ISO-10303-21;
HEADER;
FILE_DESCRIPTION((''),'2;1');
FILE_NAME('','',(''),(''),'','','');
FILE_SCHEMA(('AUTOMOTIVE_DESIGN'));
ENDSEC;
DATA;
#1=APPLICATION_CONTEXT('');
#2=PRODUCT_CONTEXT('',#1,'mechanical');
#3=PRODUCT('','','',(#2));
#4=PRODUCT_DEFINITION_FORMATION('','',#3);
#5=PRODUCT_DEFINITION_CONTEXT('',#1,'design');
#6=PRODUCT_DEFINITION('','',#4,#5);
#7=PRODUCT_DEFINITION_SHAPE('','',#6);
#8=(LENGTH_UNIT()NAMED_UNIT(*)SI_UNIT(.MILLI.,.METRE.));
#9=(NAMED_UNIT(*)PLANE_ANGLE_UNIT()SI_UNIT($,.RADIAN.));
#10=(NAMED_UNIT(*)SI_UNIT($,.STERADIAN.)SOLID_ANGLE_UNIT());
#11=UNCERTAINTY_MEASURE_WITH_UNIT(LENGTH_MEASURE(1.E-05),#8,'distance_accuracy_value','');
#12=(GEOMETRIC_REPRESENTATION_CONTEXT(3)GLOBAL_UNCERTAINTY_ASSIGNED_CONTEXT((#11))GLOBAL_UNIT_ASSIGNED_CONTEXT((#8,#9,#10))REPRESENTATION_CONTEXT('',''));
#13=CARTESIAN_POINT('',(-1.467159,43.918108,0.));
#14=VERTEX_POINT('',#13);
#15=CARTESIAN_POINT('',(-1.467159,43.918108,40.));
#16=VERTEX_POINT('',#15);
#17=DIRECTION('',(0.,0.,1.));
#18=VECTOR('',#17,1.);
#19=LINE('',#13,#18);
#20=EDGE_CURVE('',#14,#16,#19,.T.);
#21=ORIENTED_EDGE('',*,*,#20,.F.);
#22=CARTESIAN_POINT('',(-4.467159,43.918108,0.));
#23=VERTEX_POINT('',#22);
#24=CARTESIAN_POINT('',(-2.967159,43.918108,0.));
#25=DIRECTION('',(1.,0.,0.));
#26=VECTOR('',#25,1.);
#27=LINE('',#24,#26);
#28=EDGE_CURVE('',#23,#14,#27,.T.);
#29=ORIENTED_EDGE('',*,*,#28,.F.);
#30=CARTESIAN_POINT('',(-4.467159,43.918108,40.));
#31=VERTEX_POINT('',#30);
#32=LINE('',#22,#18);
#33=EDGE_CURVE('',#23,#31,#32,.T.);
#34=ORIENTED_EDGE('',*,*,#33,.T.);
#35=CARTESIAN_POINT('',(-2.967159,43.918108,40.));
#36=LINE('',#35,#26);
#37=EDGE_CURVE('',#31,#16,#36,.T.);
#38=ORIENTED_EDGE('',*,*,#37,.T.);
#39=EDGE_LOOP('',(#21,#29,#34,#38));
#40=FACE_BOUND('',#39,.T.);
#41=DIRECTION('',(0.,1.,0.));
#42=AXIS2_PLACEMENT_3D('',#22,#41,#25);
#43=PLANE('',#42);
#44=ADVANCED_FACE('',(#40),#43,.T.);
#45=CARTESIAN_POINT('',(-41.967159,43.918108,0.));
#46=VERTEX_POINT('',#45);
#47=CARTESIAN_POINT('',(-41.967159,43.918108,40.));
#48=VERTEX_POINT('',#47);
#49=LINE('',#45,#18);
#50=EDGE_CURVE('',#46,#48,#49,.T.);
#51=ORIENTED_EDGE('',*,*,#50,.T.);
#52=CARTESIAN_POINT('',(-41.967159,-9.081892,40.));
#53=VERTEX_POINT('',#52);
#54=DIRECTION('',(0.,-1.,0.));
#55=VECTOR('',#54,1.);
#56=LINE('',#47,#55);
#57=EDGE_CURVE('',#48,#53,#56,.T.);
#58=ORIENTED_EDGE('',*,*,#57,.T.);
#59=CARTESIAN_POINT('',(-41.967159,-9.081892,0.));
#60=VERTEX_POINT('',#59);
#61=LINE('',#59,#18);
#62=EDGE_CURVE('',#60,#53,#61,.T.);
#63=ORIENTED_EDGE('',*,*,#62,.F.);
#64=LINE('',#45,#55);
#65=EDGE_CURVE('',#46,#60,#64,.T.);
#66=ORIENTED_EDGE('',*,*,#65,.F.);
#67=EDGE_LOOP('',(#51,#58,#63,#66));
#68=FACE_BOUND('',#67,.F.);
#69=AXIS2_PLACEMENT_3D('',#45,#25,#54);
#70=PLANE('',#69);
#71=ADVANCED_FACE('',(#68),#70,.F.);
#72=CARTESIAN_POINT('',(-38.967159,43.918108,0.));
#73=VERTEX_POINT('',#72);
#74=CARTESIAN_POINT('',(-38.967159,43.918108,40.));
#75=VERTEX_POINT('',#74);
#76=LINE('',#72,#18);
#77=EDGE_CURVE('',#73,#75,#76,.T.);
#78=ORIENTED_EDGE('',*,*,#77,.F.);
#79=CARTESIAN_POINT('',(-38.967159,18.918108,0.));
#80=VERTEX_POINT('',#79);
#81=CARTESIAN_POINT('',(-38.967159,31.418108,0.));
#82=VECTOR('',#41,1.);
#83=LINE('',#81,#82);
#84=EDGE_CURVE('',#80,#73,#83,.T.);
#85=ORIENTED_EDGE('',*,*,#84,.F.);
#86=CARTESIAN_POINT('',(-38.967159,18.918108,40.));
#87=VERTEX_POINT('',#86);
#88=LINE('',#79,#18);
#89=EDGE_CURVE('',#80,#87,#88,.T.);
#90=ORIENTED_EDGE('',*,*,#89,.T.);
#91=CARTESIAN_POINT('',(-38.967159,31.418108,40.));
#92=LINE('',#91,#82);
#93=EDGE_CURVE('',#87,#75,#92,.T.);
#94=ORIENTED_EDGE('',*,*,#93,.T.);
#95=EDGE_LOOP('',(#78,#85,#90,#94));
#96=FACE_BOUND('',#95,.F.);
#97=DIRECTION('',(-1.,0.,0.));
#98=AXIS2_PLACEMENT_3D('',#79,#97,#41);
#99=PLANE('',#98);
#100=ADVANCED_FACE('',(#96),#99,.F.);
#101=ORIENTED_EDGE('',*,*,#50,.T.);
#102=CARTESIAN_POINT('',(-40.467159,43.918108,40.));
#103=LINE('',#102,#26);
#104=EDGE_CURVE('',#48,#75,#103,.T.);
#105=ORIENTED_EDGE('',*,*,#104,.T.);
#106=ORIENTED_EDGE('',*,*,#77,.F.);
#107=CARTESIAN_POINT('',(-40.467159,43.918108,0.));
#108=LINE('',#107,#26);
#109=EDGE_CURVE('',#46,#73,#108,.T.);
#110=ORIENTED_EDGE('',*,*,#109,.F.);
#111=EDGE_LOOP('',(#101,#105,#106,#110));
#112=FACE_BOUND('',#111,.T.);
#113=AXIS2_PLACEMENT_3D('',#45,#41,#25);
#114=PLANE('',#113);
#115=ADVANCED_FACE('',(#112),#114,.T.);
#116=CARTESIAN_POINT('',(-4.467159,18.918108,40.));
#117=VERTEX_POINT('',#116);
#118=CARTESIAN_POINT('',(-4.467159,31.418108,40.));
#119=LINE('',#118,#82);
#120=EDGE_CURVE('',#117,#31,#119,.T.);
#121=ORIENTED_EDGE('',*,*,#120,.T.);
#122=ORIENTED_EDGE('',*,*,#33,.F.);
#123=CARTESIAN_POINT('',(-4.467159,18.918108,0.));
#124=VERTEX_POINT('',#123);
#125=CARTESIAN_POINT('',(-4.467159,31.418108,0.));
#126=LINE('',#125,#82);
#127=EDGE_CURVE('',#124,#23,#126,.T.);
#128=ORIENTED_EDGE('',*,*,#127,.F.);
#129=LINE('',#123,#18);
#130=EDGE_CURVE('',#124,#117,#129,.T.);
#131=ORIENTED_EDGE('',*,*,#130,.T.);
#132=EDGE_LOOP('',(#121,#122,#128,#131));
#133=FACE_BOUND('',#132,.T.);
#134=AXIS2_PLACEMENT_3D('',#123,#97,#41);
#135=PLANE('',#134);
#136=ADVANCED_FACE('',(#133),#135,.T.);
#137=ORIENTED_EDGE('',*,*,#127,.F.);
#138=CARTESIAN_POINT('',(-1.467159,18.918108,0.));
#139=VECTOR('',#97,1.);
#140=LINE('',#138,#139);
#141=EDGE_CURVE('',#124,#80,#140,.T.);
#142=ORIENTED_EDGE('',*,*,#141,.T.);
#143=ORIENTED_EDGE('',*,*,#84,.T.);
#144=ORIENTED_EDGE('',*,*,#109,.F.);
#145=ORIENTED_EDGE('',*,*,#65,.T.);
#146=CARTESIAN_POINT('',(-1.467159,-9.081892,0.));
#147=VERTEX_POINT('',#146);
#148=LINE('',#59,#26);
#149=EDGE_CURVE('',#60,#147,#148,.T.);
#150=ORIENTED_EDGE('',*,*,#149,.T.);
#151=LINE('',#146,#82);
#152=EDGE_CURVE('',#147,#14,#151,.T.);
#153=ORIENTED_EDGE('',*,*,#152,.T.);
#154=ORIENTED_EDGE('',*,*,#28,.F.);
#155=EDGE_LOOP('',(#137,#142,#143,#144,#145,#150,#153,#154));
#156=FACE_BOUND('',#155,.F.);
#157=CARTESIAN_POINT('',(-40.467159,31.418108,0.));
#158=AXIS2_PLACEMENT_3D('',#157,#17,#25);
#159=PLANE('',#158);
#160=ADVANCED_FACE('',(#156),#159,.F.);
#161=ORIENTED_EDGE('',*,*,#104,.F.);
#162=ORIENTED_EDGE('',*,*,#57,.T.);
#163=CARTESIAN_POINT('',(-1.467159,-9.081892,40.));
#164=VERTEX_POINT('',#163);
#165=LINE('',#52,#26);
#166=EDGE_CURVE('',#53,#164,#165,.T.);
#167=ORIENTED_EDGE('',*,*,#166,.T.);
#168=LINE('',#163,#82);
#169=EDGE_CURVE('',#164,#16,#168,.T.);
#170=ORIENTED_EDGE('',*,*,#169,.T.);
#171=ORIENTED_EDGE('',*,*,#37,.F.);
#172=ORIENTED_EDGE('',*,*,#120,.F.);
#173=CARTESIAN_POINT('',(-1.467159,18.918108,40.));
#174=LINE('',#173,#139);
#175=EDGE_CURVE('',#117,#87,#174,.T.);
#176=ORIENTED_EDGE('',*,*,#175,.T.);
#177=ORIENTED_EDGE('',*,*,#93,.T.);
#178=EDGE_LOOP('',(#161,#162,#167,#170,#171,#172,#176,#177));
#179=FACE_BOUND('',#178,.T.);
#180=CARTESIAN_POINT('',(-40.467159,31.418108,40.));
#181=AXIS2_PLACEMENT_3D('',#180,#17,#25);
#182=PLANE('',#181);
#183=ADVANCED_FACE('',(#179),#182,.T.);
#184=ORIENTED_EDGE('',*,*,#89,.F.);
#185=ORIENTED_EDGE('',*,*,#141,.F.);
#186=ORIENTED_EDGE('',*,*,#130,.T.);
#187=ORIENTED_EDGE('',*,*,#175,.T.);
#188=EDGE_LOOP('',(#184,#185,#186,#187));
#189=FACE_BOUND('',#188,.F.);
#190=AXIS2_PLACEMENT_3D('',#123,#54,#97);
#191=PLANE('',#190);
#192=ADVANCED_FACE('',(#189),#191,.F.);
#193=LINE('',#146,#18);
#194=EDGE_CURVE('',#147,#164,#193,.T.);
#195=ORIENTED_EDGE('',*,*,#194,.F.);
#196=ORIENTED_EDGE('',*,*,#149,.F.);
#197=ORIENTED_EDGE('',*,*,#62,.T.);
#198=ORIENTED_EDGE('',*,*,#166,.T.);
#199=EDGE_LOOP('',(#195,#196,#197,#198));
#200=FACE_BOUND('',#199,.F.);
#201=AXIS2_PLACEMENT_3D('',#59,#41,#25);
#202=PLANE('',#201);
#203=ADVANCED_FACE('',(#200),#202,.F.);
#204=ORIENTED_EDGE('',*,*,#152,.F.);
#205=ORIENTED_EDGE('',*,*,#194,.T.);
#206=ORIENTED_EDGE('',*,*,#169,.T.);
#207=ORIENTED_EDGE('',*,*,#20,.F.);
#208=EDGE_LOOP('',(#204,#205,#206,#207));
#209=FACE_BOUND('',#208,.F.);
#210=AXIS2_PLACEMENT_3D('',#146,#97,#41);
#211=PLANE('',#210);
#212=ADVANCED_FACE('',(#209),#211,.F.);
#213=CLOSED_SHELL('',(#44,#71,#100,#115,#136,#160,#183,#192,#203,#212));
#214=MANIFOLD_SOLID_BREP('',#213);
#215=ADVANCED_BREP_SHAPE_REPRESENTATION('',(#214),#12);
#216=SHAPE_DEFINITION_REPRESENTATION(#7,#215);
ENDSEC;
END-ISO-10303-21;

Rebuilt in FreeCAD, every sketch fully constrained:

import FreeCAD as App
import Part
import Sketcher

V = App.Vector
Q = App.Units.Quantity

doc = App.newDocument("Part")
params = doc.addObject("Spreadsheet::Sheet", "Params")
for row, (alias, value) in enumerate([
    ("sketch1_width", "3 mm"),
    ("sketch1_height", "53 mm"),
    ("sketch1_height2", "25 mm"),
    ("sketch1_width2", "40.5 mm"),
    ("pad1_length", "40 mm"),
], start=1):
    params.set(f"A{row}", alias)
    params.set(f"B{row}", "=" + value)
    params.setAlias(f"B{row}", alias)

body = doc.addObject("PartDesign::Body", "Body")

sketch1 = body.newObject("Sketcher::SketchObject", "Sketch")
sketch1.AttachmentSupport = (doc.getObject("XY_Plane"), [""])
sketch1.MapMode = "FlatFace"
sketch1.addGeometry([
    Part.LineSegment(V(-41.967159, 43.918108, 0), V(-41.967159, -9.081892, 0)),
    Part.LineSegment(V(-41.967159, -9.081892, 0), V(-1.467159, -9.081892, 0)),
    Part.LineSegment(V(-1.467159, -9.081892, 0), V(-1.467159, 43.918108, 0)),
    Part.LineSegment(V(-1.467159, 43.918108, 0), V(-4.467159, 43.918108, 0)),
    Part.LineSegment(V(-4.467159, 43.918108, 0), V(-4.467159, 18.918108, 0)),
    Part.LineSegment(V(-4.467159, 18.918108, 0), V(-38.967159, 18.918108, 0)),
    Part.LineSegment(V(-38.967159, 18.918108, 0), V(-38.967159, 43.918108, 0)),
    Part.LineSegment(V(-38.967159, 43.918108, 0), V(-41.967159, 43.918108, 0)),
], False)
sketch1.addConstraint([
    Sketcher.Constraint("Coincident", 0, 2, 1, 1),
    Sketcher.Constraint("Coincident", 1, 2, 2, 1),
    Sketcher.Constraint("Coincident", 2, 2, 3, 1),
    Sketcher.Constraint("Coincident", 3, 2, 4, 1),
    Sketcher.Constraint("Coincident", 4, 2, 5, 1),
    Sketcher.Constraint("Coincident", 5, 2, 6, 1),
    Sketcher.Constraint("Coincident", 6, 2, 7, 1),
    Sketcher.Constraint("Coincident", 7, 2, 0, 1),
    Sketcher.Constraint("Vertical", 0),
    Sketcher.Constraint("Horizontal", 1),
    Sketcher.Constraint("Vertical", 2),
    Sketcher.Constraint("Horizontal", 3),
    Sketcher.Constraint("Vertical", 4),
    Sketcher.Constraint("Horizontal", 5),
    Sketcher.Constraint("Vertical", 6),
    Sketcher.Constraint("Horizontal", 7),
    Sketcher.Constraint("Horizontal", 3, 2, 6, 2),
    Sketcher.Constraint("Equal", 3, 7),
    Sketcher.Constraint("DistanceX", 3, 2, 3, 1, Q("3 mm")),
    Sketcher.Constraint("DistanceY", 0, 2, 0, 1, Q("53 mm")),
    Sketcher.Constraint("DistanceY", 4, 2, 4, 1, Q("25 mm")),
    Sketcher.Constraint("DistanceX", 1, 1, 1, 2, Q("40.5 mm")),
    Sketcher.Constraint("DistanceX", 0, 2, -1, 1, Q("41.967159 mm")),
    Sketcher.Constraint("DistanceY", -1, 1, 4, 2, Q("18.918108 mm")),
])
sketch1.setExpression("Constraints[18]", "Params.sketch1_width")
sketch1.setExpression("Constraints[19]", "Params.sketch1_height")
sketch1.setExpression("Constraints[20]", "Params.sketch1_height2")
sketch1.setExpression("Constraints[21]", "Params.sketch1_width2")
pad1 = body.newObject("PartDesign::Pad", "Pad")
pad1.Profile = sketch1
pad1.setExpression("Length", "Params.pad1_length")

doc.recompute()
